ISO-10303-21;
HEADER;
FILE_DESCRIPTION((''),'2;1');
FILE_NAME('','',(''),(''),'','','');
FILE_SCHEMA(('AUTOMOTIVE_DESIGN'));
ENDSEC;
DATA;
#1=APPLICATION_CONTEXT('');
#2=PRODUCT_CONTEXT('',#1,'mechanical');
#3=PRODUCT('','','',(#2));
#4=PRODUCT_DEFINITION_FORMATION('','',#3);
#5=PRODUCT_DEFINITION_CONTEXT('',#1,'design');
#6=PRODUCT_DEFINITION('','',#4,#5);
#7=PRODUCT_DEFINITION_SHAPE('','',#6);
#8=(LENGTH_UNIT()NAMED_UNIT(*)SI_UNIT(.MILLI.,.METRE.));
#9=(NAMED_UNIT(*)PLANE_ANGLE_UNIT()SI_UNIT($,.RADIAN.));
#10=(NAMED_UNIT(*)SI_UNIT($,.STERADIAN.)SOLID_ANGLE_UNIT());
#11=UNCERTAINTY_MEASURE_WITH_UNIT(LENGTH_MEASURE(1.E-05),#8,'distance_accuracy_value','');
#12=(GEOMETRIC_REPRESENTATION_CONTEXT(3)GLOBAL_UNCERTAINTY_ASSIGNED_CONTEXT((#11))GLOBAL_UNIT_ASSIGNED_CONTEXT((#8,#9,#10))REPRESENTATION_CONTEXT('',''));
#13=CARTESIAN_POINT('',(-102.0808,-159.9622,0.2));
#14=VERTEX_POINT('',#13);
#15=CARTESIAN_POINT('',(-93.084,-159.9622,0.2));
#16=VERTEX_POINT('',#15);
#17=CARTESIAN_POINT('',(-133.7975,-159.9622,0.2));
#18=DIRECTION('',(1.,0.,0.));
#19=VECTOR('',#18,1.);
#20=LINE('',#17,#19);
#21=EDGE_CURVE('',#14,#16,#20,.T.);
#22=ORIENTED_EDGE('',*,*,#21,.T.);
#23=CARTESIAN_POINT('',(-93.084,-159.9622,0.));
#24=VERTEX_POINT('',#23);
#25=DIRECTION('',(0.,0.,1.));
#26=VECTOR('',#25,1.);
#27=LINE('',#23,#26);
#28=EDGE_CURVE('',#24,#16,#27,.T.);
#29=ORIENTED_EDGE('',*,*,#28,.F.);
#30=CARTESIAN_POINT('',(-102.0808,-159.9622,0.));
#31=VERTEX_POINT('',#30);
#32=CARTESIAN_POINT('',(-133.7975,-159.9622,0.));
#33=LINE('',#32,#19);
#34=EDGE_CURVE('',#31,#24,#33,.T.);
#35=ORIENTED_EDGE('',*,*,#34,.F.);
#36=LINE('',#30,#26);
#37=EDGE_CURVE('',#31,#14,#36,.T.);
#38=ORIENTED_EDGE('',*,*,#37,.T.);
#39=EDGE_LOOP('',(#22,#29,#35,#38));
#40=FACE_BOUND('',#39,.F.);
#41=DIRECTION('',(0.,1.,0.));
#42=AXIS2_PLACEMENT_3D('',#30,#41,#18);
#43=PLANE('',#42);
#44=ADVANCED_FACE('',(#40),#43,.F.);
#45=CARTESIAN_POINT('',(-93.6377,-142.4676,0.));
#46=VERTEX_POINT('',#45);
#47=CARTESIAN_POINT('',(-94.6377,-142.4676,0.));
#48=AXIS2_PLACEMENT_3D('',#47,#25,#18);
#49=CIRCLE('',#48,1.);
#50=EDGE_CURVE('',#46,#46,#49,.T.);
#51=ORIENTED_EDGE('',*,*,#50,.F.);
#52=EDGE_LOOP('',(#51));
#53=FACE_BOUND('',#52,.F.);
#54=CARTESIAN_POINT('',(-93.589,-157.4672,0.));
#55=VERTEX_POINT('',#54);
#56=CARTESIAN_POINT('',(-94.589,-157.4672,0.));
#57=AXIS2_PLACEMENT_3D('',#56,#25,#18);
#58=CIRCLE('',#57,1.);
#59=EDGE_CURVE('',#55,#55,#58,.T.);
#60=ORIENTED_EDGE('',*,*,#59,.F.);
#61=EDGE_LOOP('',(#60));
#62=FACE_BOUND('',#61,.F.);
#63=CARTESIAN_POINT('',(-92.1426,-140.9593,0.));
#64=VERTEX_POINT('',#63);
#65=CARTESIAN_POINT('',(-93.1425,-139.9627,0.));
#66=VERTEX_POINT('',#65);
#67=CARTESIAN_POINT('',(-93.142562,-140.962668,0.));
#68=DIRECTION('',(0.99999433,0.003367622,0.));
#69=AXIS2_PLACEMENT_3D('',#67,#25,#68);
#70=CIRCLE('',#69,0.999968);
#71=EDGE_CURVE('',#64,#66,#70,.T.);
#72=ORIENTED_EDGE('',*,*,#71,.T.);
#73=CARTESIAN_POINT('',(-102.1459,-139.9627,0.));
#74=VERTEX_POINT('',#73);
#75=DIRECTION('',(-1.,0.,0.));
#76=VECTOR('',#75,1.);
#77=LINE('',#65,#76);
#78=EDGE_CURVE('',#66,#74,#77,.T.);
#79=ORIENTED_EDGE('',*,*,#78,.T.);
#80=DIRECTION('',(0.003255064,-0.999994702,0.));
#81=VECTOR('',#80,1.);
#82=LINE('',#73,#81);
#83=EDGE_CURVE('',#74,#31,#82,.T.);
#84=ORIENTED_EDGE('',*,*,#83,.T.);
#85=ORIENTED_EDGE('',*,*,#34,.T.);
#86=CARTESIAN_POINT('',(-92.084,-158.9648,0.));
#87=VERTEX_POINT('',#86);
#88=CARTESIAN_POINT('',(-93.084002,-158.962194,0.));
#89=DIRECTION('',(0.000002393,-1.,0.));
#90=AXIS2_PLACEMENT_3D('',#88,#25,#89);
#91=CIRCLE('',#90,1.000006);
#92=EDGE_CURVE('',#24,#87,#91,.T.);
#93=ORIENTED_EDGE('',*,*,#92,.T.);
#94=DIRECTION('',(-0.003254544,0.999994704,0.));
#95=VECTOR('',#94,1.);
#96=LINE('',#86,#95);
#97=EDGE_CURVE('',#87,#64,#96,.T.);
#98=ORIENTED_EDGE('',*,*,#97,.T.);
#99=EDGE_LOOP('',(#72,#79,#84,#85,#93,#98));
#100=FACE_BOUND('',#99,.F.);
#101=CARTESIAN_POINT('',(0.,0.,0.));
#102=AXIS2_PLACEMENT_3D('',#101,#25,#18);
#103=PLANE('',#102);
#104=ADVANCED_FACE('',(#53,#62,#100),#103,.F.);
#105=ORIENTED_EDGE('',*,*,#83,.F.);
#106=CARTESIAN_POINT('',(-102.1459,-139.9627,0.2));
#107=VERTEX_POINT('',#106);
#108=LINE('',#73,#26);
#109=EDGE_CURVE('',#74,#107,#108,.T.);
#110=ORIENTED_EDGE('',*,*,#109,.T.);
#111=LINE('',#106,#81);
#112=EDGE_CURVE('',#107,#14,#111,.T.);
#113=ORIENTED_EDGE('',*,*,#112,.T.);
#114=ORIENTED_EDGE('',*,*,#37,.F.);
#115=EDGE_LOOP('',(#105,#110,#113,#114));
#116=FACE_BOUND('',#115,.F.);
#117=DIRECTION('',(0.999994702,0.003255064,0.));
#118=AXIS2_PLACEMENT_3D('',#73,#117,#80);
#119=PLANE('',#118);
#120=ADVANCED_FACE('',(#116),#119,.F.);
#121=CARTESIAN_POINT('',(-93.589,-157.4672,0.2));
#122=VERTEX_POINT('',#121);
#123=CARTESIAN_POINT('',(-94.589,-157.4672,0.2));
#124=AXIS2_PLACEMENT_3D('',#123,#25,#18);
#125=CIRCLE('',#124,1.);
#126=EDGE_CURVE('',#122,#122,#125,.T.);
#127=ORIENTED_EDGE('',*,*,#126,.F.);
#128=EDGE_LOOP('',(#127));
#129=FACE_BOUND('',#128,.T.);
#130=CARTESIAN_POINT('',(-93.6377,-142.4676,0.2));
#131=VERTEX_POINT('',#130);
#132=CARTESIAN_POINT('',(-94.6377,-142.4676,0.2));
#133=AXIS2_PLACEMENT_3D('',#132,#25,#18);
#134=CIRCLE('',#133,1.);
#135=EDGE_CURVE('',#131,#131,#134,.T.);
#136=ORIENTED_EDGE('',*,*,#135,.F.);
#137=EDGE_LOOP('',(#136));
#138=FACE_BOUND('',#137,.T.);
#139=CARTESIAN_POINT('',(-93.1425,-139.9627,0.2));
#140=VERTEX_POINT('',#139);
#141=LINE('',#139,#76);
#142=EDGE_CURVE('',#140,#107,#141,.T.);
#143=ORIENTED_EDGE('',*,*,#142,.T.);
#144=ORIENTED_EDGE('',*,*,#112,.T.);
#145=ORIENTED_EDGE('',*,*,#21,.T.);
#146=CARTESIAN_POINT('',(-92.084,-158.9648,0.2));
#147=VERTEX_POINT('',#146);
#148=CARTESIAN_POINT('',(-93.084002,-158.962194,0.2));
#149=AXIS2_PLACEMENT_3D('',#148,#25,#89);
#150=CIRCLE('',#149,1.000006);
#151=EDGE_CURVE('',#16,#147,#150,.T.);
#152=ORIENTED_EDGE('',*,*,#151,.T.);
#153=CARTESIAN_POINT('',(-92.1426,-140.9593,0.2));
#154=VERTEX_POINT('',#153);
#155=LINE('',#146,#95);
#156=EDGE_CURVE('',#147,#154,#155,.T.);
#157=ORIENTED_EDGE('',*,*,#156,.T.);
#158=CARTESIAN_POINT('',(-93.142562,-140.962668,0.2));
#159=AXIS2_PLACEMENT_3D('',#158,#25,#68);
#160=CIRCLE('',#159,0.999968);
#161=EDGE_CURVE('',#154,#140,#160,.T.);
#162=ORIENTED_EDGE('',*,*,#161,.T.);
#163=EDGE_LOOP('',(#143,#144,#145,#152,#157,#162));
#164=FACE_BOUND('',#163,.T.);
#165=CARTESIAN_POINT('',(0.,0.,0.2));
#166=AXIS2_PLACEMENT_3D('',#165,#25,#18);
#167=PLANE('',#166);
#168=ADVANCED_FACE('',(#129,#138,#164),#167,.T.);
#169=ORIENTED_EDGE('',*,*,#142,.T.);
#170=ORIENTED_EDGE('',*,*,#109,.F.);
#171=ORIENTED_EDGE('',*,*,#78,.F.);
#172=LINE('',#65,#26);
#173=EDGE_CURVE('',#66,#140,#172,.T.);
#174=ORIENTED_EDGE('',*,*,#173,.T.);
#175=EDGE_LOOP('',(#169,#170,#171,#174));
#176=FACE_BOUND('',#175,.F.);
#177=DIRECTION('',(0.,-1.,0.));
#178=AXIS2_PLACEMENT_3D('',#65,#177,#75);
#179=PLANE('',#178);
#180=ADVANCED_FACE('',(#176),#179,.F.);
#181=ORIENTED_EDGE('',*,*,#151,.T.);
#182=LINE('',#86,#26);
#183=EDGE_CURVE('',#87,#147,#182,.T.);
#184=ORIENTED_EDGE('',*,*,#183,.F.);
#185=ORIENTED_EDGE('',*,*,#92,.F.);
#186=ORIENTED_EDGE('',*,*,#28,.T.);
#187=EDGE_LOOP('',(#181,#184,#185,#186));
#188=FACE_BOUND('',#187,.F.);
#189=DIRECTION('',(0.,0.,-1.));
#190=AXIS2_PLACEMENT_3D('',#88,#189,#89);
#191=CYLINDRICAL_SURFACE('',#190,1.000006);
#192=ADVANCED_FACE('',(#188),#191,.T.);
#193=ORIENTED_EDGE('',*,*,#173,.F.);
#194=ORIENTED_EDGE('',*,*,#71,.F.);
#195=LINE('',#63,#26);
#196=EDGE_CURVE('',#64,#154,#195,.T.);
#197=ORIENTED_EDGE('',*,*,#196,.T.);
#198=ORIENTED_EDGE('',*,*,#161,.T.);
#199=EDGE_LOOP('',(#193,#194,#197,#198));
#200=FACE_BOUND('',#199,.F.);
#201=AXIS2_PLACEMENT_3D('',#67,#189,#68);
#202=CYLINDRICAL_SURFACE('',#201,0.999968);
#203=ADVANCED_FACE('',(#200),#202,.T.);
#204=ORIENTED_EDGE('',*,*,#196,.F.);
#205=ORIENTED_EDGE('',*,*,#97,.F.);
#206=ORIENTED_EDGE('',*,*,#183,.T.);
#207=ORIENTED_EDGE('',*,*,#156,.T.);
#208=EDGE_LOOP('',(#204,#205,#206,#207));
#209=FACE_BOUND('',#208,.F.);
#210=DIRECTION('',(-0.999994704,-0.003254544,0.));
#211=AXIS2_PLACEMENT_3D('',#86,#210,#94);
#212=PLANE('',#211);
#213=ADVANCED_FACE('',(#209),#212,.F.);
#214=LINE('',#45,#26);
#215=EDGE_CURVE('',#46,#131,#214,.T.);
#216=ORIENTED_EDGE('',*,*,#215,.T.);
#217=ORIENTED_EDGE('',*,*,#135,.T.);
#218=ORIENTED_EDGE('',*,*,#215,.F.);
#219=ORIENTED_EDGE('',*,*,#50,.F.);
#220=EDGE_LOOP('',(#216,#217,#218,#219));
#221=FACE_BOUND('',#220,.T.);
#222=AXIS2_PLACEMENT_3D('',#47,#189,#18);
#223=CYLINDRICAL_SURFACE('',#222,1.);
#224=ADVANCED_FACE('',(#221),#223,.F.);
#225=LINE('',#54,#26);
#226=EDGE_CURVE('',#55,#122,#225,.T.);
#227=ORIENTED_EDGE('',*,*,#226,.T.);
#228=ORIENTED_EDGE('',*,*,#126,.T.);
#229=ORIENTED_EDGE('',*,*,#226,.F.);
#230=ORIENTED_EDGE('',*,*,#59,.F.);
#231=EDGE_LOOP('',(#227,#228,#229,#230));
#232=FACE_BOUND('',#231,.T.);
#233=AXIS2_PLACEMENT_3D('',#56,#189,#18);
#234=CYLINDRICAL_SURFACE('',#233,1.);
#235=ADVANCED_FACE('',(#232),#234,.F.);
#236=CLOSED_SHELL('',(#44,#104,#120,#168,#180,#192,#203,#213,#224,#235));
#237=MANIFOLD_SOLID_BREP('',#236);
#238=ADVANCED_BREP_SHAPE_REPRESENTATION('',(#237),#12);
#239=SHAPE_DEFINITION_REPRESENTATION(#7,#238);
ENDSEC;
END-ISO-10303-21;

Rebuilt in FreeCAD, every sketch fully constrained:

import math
import FreeCAD as App
import Part
import Sketcher

V = App.Vector
Q = App.Units.Quantity

doc = App.newDocument("Part")
body = doc.addObject("PartDesign::Body", "Body")

# Sketch on XY plane
sketch1 = body.newObject("Sketcher::SketchObject", "Sketch")
sketch1.AttachmentSupport = (doc.getObject("XY_Plane"), [""])
sketch1.MapMode = "FlatFace"
sketch1.addGeometry(Part.ArcOfCircle(Part.Circle(V(-93.084, -158.9622, 0), V(0, 0, 1), 1), math.radians(-90), math.radians(-0.148969)), False)
sketch1.addGeometry(Part.LineSegment(V(-92.084, -158.9648, 0), V(-92.1426, -140.9593, 0)), False)
sketch1.addGeometry(Part.ArcOfCircle(Part.Circle(V(-93.1424, -140.9626, 0), V(0, 0, 1), 0.999805), math.radians(0.189113), math.radians(90.00573)), False)
sketch1.addGeometry(Part.LineSegment(V(-93.1425, -139.9627, 0), V(-102.1459, -139.9627, 0)), False)
sketch1.addGeometry(Part.LineSegment(V(-102.1459, -139.9627, 0), V(-102.0808, -159.9622, 0)), False)
sketch1.addGeometry(Part.LineSegment(V(-102.0808, -159.9622, 0), V(-93.084, -159.9622, 0)), False)
sketch1.addGeometry(Part.Circle(V(-94.589, -157.4672, 0), V(0, 0, 1), 1), False)
sketch1.addGeometry(Part.Circle(V(-94.6377, -142.4676, 0), V(0, 0, 1), 1), False)
sketch1.addConstraint(Sketcher.Constraint("Coincident", 0, 2, 1, 1))
sketch1.addConstraint(Sketcher.Constraint("Coincident", 1, 2, 2, 1))
sketch1.addConstraint(Sketcher.Constraint("Coincident", 2, 2, 3, 1))
sketch1.addConstraint(Sketcher.Constraint("Coincident", 3, 2, 4, 1))
sketch1.addConstraint(Sketcher.Constraint("Coincident", 4, 2, 5, 1))
sketch1.addConstraint(Sketcher.Constraint("Coincident", 5, 2, 0, 1))
sketch1.addConstraint(Sketcher.Constraint("Horizontal", 3))
sketch1.addConstraint(Sketcher.Constraint("Horizontal", 5))
sketch1.addConstraint(Sketcher.Constraint("Diameter", 6, Q("2 mm")))
sketch1.addConstraint(Sketcher.Constraint("Diameter", 7, Q("2 mm")))
sketch1.addConstraint(Sketcher.Constraint("Radius", 0, Q("1 mm")))
sketch1.addConstraint(Sketcher.Constraint("DistanceX", 2, 2, 1, 2, Q("1 mm")))
sketch1.addConstraint(Sketcher.Constraint("DistanceY", 2, 3, 3, 2, Q("1 mm")))
sketch1.addConstraint(Sketcher.Constraint("DistanceX", 5, 2, 0, 2, Q("1 mm")))
sketch1.addConstraint(Sketcher.Constraint("DistanceX", 3, 2, 3, 1, Q("9.0034 mm")))
sketch1.addConstraint(Sketcher.Constraint("DistanceX", 5, 1, 5, 2, Q("8.9968 mm")))
sketch1.addConstraint(Sketcher.Constraint("DistanceX", 0, 3, -1, 1, Q("93.084 mm")))
sketch1.addConstraint(Sketcher.Constraint("DistanceX", 6, 3, -1, 1, Q("94.589 mm")))
sketch1.addConstraint(Sketcher.Constraint("DistanceX", 3, 2, -1, 1, Q("102.146 mm")))
sketch1.addConstraint(Sketcher.Constraint("DistanceY", 0, 3, 6, 3, Q("1.495 mm")))
sketch1.addConstraint(Sketcher.Constraint("DistanceY", 7, 3, 2, 3, Q("1.505 mm")))
sketch1.addConstraint(Sketcher.Constraint("DistanceX", 7, 3, 1, 2, Q("2.495 mm")))
sketch1.addConstraint(Sketcher.Constraint("DistanceY", 6, 3, 1, 2, Q("16.508 mm")))
sketch1.addConstraint(Sketcher.Constraint("Distance", 1, Q("18.0056 mm")))
sketch1.addConstraint(Sketcher.Constraint("Distance", 4, Q("19.9996 mm")))
sketch1.addConstraint(Sketcher.Constraint("DistanceY", 0, 3, -1, 1, Q("158.9622 mm")))
pad1 = body.newObject("PartDesign::Pad", "Pad")
pad1.Profile = sketch1
pad1.Length = 0.2

doc.recompute()
